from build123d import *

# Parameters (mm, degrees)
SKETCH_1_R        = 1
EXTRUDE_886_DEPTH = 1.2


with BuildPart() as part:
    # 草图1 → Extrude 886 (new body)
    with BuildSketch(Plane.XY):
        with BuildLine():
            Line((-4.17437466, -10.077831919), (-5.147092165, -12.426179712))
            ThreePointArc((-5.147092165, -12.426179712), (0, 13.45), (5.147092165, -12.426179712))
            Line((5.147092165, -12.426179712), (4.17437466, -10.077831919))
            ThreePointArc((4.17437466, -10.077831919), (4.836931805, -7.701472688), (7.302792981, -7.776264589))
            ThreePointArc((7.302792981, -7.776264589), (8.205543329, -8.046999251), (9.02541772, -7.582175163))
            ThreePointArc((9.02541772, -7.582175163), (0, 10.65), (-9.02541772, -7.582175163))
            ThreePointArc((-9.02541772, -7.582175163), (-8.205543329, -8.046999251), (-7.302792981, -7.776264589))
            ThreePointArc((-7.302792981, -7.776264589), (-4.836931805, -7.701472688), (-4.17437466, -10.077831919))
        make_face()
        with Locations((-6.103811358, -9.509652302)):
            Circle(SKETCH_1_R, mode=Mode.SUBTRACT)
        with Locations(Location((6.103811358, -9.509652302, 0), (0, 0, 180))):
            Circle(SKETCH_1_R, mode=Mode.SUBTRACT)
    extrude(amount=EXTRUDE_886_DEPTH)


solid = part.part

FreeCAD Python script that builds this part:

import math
import FreeCAD as App
import Part
import Sketcher

V = App.Vector
Q = App.Units.Quantity

doc = App.newDocument("Part")
body = doc.addObject("PartDesign::Body", "Body")

sketch1 = body.newObject("Sketcher::SketchObject", "Sketch")
sketch1.AttachmentSupport = (doc.getObject("XY_Plane"), [""])
sketch1.MapMode = "FlatFace"
sketch1.addGeometry(Part.LineSegment(V(-5.147092, -12.42618, 0), V(-4.174375, -10.077832, 0)), False)
sketch1.addGeometry(Part.ArcOfCircle(Part.Circle(V(-6.022134, -9.312465, 0), V(0, 0, 1), 2), math.radians(-22.5), math.radians(129.816403)), False)
sketch1.addGeometry(Part.ArcOfCircle(Part.Circle(V(-8.071189, -6.854544, 0), V(0, 0, 1), 1.2), math.radians(-142.673299), math.radians(-50.183597)), False)
sketch1.addGeometry(Part.ArcOfCircle(Part.Circle(V(0, -0.7, 0), V(0, 0, 1), 11.35), math.radians(-37.326701), math.radians(217.326701)), False)
sketch1.addGeometry(Part.ArcOfCircle(Part.Circle(V(8.071189, -6.854544, 0), V(0, 0, 1), 1.2), math.radians(-129.816403), math.radians(-37.326701)), False)
sketch1.addGeometry(Part.ArcOfCircle(Part.Circle(V(6.022134, -9.312465, 0), V(0, 0, 1), 2), math.radians(50.183597), math.radians(202.5)), False)
sketch1.addGeometry(Part.LineSegment(V(4.174375, -10.077832, 0), V(5.147092, -12.42618, 0)), False)
sketch1.addGeometry(Part.ArcOfCircle(Part.Circle(V(0, 0, 0), V(0, 0, 1), 13.45), math.radians(-67.5), math.radians(247.5)), False)
sketch1.addGeometry(Part.Circle(V(6.103811, -9.509652, 0), V(0, 0, 1), 1), False)
sketch1.addGeometry(Part.Circle(V(-6.103811, -9.509652, 0), V(0, 0, 1), 1), False)
sketch1.addConstraint(Sketcher.Constraint("Tangent", 0, 2, 1, 1))
sketch1.addConstraint(Sketcher.Constraint("Tangent", 1, 2, 2, 2))
sketch1.addConstraint(Sketcher.Constraint("Tangent", 2, 1, 3, 2))
sketch1.addConstraint(Sketcher.Constraint("Tangent", 3, 1, 4, 2))
sketch1.addConstraint(Sketcher.Constraint("Tangent", 4, 1, 5, 1))
sketch1.addConstraint(Sketcher.Constraint("Tangent", 5, 2, 6, 1))
sketch1.addConstraint(Sketcher.Constraint("Coincident", 6, 2, 7, 1))
sketch1.addConstraint(Sketcher.Constraint("Coincident", 7, 2, 0, 1))
sketch1.addConstraint(Sketcher.Constraint("Coincident", 7, 3, -1, 1))
sketch1.addConstraint(Sketcher.Constraint("Equal", 2, 4))
sketch1.addConstraint(Sketcher.Constraint("Equal", 1, 5))
sketch1.addConstraint(Sketcher.Constraint("Equal", 8, 9))
sketch1.addConstraint(Sketcher.Constraint("Symmetric", 2, 3, 4, 3, -2))
sketch1.addConstraint(Sketcher.Constraint("Symmetric", 8, 3, 9, 3, -2))
sketch1.addConstraint(Sketcher.Constraint("Symmetric", 0, 2, 5, 2, -2))
sketch1.addConstraint(Sketcher.Constraint("Diameter", 8, 2.0))
sketch1.addConstraint(Sketcher.Constraint("Radius", 1, 2.0))
sketch1.addConstraint(Sketcher.Constraint("Radius", 2, 1.2))
sketch1.addConstraint(Sketcher.Constraint("Radius", 3, 11.35))
sketch1.addConstraint(Sketcher.Constraint("Radius", 7, 13.45))
sketch1.addConstraint(Sketcher.Constraint("Angle", 0, Q("67.5 deg")))
sketch1.addConstraint(Sketcher.Constraint("DistanceY", 3, 3, -1, 1, 0.7))
sketch1.addConstraint(Sketcher.Constraint("DistanceY", 1, 3, 1, 2, 1.5362))
sketch1.addConstraint(Sketcher.Constraint("DistanceX", 6, 2, 4, 1, 2.155701))
sketch1.addConstraint(Sketcher.Constraint("DistanceX", -1, 1, 8, 3, 6.103811))
sketch1.addConstraint(Sketcher.Constraint("DistanceY", 0, 2, 9, 3, 0.56818))
pad1 = body.newObject("PartDesign::Pad", "Pad")
pad1.Profile = sketch1
pad1.Length = 1.2

doc.recompute()
